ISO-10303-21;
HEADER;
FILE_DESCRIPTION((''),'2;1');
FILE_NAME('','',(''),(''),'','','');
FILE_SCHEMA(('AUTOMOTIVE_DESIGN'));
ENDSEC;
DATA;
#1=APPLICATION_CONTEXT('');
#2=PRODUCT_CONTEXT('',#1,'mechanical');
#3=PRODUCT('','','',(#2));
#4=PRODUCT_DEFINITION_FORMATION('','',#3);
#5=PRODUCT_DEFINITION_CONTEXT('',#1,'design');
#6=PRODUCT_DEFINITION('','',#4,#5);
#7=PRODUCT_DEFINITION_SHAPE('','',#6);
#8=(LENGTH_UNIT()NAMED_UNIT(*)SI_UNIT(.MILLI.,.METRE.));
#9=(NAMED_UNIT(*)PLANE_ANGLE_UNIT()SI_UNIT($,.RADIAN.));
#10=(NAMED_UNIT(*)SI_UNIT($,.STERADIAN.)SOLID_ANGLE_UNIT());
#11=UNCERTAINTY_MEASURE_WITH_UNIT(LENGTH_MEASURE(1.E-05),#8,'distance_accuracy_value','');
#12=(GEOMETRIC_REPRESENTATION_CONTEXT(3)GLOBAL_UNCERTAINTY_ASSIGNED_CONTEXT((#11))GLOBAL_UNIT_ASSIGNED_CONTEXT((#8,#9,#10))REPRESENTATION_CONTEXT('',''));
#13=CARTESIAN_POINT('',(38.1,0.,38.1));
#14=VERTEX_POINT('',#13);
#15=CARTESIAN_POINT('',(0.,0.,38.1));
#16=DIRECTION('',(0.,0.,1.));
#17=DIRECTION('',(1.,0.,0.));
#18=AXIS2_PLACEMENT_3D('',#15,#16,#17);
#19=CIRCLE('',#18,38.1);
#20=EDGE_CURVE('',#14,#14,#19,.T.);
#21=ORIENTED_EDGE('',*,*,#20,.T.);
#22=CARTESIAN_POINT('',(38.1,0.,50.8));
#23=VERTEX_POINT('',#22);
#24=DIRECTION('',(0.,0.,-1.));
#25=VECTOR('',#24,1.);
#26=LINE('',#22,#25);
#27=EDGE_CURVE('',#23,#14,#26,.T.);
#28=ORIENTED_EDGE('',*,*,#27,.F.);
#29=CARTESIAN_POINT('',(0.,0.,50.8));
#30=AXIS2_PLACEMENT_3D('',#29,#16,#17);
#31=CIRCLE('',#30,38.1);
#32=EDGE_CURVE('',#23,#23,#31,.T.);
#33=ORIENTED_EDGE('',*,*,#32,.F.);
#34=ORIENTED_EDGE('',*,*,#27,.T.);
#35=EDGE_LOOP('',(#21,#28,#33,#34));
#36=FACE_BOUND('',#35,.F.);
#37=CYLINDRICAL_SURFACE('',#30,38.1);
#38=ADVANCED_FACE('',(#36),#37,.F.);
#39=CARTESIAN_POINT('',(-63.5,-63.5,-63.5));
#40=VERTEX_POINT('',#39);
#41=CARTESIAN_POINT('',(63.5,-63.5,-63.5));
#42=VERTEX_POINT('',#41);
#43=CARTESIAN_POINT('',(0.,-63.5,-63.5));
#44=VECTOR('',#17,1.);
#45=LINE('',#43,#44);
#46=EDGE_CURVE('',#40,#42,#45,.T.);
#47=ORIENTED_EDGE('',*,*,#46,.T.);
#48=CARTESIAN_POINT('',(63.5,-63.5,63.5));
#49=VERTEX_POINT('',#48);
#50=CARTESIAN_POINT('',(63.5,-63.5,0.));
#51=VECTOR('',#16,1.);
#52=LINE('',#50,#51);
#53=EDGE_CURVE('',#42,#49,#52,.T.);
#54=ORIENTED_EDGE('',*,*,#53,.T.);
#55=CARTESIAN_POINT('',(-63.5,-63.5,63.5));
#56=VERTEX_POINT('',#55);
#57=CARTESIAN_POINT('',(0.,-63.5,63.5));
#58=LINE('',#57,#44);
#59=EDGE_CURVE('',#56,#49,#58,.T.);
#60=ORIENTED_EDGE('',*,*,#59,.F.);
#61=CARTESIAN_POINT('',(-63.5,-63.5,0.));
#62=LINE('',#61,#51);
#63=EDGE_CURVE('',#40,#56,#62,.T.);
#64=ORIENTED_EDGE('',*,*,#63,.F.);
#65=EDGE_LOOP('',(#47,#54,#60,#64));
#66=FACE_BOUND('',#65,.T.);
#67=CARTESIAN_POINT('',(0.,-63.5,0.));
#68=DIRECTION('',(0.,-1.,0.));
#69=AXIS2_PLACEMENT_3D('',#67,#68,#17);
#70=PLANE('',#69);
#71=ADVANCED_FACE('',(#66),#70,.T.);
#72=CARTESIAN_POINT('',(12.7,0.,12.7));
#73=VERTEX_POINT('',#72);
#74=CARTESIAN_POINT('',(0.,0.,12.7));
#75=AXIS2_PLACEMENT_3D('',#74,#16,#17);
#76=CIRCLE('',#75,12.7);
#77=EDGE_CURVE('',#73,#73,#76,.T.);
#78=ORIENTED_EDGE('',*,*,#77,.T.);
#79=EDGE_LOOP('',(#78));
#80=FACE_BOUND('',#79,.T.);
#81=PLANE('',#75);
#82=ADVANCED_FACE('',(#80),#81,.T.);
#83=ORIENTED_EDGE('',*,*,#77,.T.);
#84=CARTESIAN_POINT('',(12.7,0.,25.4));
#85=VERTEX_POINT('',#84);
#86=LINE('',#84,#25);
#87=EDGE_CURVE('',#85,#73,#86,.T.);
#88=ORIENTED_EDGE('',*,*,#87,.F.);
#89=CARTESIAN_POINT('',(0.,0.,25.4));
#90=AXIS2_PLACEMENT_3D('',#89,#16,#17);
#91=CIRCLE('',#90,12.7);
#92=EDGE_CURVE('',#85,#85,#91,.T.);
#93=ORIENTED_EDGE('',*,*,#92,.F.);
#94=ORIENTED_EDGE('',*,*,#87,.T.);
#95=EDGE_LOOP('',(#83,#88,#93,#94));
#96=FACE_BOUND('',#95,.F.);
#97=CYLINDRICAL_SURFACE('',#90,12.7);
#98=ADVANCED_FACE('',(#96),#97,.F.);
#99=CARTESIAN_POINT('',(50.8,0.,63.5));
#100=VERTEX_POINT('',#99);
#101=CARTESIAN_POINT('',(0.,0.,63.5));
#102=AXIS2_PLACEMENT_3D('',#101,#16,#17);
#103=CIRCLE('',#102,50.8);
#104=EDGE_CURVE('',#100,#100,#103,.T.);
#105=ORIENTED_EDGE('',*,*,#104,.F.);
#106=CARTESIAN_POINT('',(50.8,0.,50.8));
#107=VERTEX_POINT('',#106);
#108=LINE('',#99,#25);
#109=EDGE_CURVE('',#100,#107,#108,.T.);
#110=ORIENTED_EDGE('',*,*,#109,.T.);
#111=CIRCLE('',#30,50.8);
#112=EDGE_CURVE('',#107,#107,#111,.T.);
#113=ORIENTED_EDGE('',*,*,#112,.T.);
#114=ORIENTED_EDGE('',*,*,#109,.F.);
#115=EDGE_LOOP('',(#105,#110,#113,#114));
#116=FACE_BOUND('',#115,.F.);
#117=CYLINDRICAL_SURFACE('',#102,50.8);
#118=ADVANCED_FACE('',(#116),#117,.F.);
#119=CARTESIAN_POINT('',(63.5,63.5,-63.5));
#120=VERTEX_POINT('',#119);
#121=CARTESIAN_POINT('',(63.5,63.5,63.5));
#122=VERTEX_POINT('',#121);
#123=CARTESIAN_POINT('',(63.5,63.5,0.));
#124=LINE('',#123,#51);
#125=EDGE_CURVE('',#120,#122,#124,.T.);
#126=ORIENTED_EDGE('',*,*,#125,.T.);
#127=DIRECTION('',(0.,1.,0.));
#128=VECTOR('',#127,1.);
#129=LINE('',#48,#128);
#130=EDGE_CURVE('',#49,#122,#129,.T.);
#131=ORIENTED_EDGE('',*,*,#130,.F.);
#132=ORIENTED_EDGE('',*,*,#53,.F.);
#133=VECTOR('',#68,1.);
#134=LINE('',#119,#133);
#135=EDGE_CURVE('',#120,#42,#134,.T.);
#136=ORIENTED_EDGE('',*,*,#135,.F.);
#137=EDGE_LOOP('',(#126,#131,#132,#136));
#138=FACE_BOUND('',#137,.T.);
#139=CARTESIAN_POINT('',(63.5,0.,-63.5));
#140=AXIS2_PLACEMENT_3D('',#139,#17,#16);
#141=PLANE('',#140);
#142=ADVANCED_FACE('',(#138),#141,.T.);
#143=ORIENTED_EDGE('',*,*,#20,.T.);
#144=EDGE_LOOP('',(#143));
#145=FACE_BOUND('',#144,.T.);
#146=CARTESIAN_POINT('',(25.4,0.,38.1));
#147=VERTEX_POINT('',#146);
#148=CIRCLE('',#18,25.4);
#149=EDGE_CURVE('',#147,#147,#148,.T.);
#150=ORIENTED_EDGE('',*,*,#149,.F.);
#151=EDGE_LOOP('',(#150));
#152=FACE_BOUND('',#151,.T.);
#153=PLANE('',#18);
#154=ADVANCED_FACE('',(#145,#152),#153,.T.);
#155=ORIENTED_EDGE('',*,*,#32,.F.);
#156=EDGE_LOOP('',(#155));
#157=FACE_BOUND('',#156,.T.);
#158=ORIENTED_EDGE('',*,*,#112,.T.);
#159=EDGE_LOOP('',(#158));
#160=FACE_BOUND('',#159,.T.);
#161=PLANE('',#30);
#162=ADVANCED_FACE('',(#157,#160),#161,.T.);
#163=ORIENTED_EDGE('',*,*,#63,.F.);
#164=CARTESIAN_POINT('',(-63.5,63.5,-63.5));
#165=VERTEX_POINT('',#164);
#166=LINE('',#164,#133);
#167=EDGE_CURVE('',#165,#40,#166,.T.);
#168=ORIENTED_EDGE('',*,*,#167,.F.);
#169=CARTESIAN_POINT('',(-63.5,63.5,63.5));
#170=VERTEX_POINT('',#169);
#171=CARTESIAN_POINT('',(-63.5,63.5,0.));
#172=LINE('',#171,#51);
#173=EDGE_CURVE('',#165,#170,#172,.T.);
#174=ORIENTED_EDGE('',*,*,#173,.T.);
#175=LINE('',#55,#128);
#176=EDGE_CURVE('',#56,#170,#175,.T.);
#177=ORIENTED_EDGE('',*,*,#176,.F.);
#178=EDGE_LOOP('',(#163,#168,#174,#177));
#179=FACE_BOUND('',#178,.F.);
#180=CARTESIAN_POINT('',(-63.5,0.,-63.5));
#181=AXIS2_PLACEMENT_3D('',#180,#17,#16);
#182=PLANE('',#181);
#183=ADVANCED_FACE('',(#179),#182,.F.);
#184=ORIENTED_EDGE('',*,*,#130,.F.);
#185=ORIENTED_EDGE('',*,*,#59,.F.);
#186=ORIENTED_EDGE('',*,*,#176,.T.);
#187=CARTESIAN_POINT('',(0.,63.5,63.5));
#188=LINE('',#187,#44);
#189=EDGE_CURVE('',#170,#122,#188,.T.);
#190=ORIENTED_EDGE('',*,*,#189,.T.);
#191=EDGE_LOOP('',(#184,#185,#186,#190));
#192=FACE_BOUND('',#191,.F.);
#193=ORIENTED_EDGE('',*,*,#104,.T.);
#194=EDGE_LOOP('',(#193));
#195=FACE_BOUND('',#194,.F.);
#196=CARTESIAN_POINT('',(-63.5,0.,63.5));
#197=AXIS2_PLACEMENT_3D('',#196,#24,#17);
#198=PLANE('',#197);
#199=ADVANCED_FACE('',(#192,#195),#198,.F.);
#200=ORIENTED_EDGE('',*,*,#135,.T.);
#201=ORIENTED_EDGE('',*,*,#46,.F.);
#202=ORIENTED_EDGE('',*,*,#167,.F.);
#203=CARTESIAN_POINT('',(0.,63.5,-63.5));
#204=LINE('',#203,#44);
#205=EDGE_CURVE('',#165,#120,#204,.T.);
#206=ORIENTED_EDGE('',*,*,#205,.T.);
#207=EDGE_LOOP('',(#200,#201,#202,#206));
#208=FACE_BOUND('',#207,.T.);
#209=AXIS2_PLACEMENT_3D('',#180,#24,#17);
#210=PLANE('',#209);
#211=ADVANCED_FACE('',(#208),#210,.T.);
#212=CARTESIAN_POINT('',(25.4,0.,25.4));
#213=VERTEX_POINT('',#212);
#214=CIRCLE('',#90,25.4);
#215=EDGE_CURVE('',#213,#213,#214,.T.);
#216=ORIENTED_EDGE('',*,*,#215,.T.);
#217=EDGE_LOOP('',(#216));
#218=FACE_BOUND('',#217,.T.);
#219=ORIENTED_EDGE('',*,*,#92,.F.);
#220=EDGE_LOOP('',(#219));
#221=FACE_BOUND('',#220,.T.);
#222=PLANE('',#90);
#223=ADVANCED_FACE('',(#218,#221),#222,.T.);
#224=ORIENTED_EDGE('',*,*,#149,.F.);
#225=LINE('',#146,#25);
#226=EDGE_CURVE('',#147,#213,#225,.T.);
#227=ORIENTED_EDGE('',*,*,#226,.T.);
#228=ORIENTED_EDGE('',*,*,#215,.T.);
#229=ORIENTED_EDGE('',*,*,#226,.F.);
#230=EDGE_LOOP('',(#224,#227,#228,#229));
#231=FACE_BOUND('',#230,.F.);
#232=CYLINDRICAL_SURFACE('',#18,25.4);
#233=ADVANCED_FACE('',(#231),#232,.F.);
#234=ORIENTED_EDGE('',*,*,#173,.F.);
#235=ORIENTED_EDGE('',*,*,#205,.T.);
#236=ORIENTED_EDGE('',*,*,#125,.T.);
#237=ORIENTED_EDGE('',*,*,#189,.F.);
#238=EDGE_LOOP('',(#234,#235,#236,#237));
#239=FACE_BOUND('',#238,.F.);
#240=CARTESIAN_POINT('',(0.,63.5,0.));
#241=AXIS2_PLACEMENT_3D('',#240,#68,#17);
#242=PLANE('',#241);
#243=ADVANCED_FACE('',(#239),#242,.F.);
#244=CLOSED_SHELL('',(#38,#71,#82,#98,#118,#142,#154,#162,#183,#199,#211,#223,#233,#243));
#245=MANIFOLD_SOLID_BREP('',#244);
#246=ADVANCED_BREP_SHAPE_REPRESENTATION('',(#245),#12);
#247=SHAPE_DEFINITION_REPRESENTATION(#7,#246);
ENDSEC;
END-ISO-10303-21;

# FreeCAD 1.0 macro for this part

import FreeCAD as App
import Part
import Sketcher

V = App.Vector
Q = App.Units.Quantity

doc = App.newDocument("Part")
body = doc.addObject("PartDesign::Body", "Body")

sketch1 = body.newObject("Sketcher::SketchObject", "Sketch")
sketch1.AttachmentSupport = (doc.getObject("XZ_Plane"), [""])
sketch1.MapMode = "FlatFace"
sketch1.addGeometry(Part.LineSegment(V(-64, 64, 0), V(-64, -64, 0)), False)
sketch1.addGeometry(Part.LineSegment(V(-64, -64, 0), V(64, -64, 0)), False)
sketch1.addGeometry(Part.LineSegment(V(64, -64, 0), V(64, 64, 0)), False)
sketch1.addGeometry(Part.LineSegment(V(64, 64, 0), V(-64, 64, 0)), False)
sketch1.addConstraint(Sketcher.Constraint("Coincident", 0, 2, 1, 1))
sketch1.addConstraint(Sketcher.Constraint("Coincident", 1, 2, 2, 1))
sketch1.addConstraint(Sketcher.Constraint("Coincident", 2, 2, 3, 1))
sketch1.addConstraint(Sketcher.Constraint("Coincident", 3, 2, 0, 1))
sketch1.addConstraint(Sketcher.Constraint("Vertical", 0))
sketch1.addConstraint(Sketcher.Constraint("Horizontal", 1))
sketch1.addConstraint(Sketcher.Constraint("Vertical", 2))
sketch1.addConstraint(Sketcher.Constraint("Horizontal", 3))
sketch1.addConstraint(Sketcher.Constraint("Symmetric", 0, 2, 2, 2, -1, 1))
sketch1.addConstraint(Sketcher.Constraint("Equal", 3, 0))
sketch1.addConstraint(Sketcher.Constraint("DistanceX", 1, 1, 1, 2, Q("5 in")))
pad1 = body.newObject("PartDesign::Pad", "Pad")
pad1.Profile = sketch1
pad1.Length = Q("5 in")
pad1.Midplane = True

sketch2 = body.newObject("Sketcher::SketchObject", "Sketch001")
sketch2.AttachmentSupport = (doc.getObject("XY_Plane"), [""])
sketch2.MapMode = "FlatFace"
sketch2.AttachmentOffset = App.Placement(V(0, 0, 2.5 * 25.4), App.Rotation())
sketch2.addGeometry(Part.Circle(V(0, 0, 0), V(0, 0, 1), 51), False)
sketch2.addConstraint(Sketcher.Constraint("Coincident", 0, 3, -1, 1))
sketch2.addConstraint(Sketcher.Constraint("Diameter", 0, Q("4 in")))
pocket1 = body.newObject("PartDesign::Pocket", "Pocket")
pocket1.Profile = sketch2
pocket1.Length = Q("0.5 in")

sketch3 = body.newObject("Sketcher::SketchObject", "Sketch002")
sketch3.AttachmentSupport = (doc.getObject("XY_Plane"), [""])
sketch3.MapMode = "FlatFace"
sketch3.AttachmentOffset = App.Placement(V(0, 0, 2 * 25.4), App.Rotation())
sketch3.addGeometry(Part.Circle(V(0, 0, 0), V(0, 0, 1), 38), False)
sketch3.addConstraint(Sketcher.Constraint("Coincident", 0, 3, -1, 1))
sketch3.addConstraint(Sketcher.Constraint("Diameter", 0, Q("3 in")))
pocket2 = body.newObject("PartDesign::Pocket", "Pocket001")
pocket2.Profile = sketch3
pocket2.Length = Q("0.5 in")

sketch4 = body.newObject("Sketcher::SketchObject", "Sketch003")
sketch4.AttachmentSupport = (doc.getObject("XY_Plane"), [""])
sketch4.MapMode = "FlatFace"
sketch4.AttachmentOffset = App.Placement(V(0, 0, 1.5 * 25.4), App.Rotation())
sketch4.addGeometry(Part.Circle(V(0, 0, 0), V(0, 0, 1), 25), False)
sketch4.addConstraint(Sketcher.Constraint("Coincident", 0, 3, -1, 1))
sketch4.addConstraint(Sketcher.Constraint("Diameter", 0, Q("2 in")))
pocket3 = body.newObject("PartDesign::Pocket", "Pocket002")
pocket3.Profile = sketch4
pocket3.Length = Q("0.5 in")

sketch5 = body.newObject("Sketcher::SketchObject", "Sketch004")
sketch5.AttachmentSupport = (doc.getObject("XY_Plane"), [""])
sketch5.MapMode = "FlatFace"
sketch5.AttachmentOffset = App.Placement(V(0, 0, 1 * 25.4), App.Rotation())
sketch5.addGeometry(Part.Circle(V(0, 0, 0), V(0, 0, 1), 13), False)
sketch5.addConstraint(Sketcher.Constraint("Coincident", 0, 3, -1, 1))
sketch5.addConstraint(Sketcher.Constraint("Diameter", 0, Q("1 in")))
pocket4 = body.newObject("PartDesign::Pocket", "Pocket003")
pocket4.Profile = sketch5
pocket4.Length = Q("0.5 in")

doc.recompute()
